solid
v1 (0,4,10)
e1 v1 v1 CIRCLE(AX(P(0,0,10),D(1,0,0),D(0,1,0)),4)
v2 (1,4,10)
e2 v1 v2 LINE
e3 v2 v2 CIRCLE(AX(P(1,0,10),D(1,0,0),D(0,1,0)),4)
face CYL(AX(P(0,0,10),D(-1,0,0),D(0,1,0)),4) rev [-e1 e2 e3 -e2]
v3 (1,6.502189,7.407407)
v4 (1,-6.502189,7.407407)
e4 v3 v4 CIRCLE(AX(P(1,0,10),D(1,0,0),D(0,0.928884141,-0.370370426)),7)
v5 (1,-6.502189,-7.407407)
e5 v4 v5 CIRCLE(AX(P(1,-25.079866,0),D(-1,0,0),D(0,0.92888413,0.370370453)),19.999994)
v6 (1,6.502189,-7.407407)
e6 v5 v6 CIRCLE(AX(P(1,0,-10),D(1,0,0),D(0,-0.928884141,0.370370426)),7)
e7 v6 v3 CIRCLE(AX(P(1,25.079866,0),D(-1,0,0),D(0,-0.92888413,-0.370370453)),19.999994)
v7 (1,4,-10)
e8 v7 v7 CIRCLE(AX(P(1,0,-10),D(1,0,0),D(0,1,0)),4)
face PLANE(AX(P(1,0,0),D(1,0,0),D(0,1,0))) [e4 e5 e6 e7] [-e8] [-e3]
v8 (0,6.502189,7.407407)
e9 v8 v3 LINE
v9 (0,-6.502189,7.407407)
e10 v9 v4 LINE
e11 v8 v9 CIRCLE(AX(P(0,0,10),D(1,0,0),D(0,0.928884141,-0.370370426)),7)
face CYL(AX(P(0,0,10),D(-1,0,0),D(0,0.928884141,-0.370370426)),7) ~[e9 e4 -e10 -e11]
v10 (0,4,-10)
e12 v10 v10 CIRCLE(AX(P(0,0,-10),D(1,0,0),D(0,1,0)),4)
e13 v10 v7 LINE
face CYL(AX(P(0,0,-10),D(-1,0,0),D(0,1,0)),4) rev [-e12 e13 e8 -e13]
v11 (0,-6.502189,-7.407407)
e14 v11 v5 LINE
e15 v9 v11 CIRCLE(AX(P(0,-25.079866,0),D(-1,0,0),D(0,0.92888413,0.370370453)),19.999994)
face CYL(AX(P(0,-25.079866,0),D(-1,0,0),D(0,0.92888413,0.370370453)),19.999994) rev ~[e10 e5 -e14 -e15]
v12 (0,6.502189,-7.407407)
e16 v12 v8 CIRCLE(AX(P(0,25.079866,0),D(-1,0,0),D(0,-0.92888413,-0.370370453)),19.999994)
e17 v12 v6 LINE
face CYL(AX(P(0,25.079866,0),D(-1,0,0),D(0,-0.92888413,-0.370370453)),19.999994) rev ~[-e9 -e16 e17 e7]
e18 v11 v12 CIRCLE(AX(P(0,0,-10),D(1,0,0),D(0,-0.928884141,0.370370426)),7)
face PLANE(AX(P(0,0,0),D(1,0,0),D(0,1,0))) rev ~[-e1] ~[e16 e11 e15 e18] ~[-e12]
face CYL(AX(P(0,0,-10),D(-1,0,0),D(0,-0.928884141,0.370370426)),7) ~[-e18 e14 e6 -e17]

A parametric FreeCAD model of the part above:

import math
import FreeCAD as App
import Part
import Sketcher
from FreeCAD import Vector

doc = App.newDocument("Part")
params = doc.addObject("Spreadsheet::Sheet", "Params")
for row, (alias, value) in enumerate([
    ("sketch1_diameter", "8 mm"),
    ("sketch1_radius", "7 mm"),
    ("pad1_length", "1 mm"),
], start=1):
    params.set(f"A{row}", alias)
    params.set(f"B{row}", "=" + value)
    params.setAlias(f"B{row}", alias)

body = doc.addObject("PartDesign::Body", "Body")

# Sketch on YZ plane
sketch1 = body.newObject("Sketcher::SketchObject", "Sketch")
sketch1.AttachmentSupport = (doc.getObject("YZ_Plane"), [""])
sketch1.MapMode = "FlatFace"
sketch1.addGeometry([
    Part.ArcOfCircle(Part.Circle(Vector(25.1, 0, 0), Vector(0, 0, 1), 20), math.radians(158), math.radians(202)),  # 0
    Part.ArcOfCircle(Part.Circle(Vector(0, 10, 0), Vector(0, 0, 1), 7), math.radians(-22), math.radians(202)),  # 1
    Part.ArcOfCircle(Part.Circle(Vector(-25.1, 0, 0), Vector(0, 0, 1), 20), math.radians(-22), math.radians(22)),  # 2
    Part.ArcOfCircle(Part.Circle(Vector(0, -10, 0), Vector(0, 0, 1), 7), math.radians(158), math.radians(382)),  # 3
    Part.Circle(Vector(0, -10, 0), Vector(0, 0, 1), 4),  # 4
    Part.Circle(Vector(0, 10, 0), Vector(0, 0, 1), 4),  # 5
], False)
sketch1.addConstraint([
    Sketcher.Constraint("Tangent", 0, 1, 1, 1),
    Sketcher.Constraint("Tangent", 1, 2, 2, 2),
    Sketcher.Constraint("Tangent", 2, 1, 3, 1),
    Sketcher.Constraint("Tangent", 3, 2, 0, 2),
    Sketcher.Constraint("Coincident", 4, 3, 3, 3),
    Sketcher.Constraint("Coincident", 5, 3, 1, 3),
    Sketcher.Constraint("Equal", 0, 2),
    Sketcher.Constraint("Equal", 1, 3),
    Sketcher.Constraint("Equal", 4, 5),
    Sketcher.Constraint("Symmetric", 0, 3, 2, 3, -1, 1),
    Sketcher.Constraint("PointOnObject", 0, 3, -1),
    Sketcher.Constraint("Diameter", 4, 8.0),
    Sketcher.Constraint("Radius", 1, 7.0),
    Sketcher.Constraint("DistanceY", -1, 1, 1, 3, 10.0),
    Sketcher.Constraint("Radius", 0, 19.999994),
])
sketch1.setExpression("Constraints[11]", "Params.sketch1_diameter")
sketch1.setExpression("Constraints[12]", "Params.sketch1_radius")
pad1 = body.newObject("PartDesign::Pad", "Pad")
pad1.Profile = sketch1
pad1.setExpression("Length", "Params.pad1_length")

doc.recompute()
